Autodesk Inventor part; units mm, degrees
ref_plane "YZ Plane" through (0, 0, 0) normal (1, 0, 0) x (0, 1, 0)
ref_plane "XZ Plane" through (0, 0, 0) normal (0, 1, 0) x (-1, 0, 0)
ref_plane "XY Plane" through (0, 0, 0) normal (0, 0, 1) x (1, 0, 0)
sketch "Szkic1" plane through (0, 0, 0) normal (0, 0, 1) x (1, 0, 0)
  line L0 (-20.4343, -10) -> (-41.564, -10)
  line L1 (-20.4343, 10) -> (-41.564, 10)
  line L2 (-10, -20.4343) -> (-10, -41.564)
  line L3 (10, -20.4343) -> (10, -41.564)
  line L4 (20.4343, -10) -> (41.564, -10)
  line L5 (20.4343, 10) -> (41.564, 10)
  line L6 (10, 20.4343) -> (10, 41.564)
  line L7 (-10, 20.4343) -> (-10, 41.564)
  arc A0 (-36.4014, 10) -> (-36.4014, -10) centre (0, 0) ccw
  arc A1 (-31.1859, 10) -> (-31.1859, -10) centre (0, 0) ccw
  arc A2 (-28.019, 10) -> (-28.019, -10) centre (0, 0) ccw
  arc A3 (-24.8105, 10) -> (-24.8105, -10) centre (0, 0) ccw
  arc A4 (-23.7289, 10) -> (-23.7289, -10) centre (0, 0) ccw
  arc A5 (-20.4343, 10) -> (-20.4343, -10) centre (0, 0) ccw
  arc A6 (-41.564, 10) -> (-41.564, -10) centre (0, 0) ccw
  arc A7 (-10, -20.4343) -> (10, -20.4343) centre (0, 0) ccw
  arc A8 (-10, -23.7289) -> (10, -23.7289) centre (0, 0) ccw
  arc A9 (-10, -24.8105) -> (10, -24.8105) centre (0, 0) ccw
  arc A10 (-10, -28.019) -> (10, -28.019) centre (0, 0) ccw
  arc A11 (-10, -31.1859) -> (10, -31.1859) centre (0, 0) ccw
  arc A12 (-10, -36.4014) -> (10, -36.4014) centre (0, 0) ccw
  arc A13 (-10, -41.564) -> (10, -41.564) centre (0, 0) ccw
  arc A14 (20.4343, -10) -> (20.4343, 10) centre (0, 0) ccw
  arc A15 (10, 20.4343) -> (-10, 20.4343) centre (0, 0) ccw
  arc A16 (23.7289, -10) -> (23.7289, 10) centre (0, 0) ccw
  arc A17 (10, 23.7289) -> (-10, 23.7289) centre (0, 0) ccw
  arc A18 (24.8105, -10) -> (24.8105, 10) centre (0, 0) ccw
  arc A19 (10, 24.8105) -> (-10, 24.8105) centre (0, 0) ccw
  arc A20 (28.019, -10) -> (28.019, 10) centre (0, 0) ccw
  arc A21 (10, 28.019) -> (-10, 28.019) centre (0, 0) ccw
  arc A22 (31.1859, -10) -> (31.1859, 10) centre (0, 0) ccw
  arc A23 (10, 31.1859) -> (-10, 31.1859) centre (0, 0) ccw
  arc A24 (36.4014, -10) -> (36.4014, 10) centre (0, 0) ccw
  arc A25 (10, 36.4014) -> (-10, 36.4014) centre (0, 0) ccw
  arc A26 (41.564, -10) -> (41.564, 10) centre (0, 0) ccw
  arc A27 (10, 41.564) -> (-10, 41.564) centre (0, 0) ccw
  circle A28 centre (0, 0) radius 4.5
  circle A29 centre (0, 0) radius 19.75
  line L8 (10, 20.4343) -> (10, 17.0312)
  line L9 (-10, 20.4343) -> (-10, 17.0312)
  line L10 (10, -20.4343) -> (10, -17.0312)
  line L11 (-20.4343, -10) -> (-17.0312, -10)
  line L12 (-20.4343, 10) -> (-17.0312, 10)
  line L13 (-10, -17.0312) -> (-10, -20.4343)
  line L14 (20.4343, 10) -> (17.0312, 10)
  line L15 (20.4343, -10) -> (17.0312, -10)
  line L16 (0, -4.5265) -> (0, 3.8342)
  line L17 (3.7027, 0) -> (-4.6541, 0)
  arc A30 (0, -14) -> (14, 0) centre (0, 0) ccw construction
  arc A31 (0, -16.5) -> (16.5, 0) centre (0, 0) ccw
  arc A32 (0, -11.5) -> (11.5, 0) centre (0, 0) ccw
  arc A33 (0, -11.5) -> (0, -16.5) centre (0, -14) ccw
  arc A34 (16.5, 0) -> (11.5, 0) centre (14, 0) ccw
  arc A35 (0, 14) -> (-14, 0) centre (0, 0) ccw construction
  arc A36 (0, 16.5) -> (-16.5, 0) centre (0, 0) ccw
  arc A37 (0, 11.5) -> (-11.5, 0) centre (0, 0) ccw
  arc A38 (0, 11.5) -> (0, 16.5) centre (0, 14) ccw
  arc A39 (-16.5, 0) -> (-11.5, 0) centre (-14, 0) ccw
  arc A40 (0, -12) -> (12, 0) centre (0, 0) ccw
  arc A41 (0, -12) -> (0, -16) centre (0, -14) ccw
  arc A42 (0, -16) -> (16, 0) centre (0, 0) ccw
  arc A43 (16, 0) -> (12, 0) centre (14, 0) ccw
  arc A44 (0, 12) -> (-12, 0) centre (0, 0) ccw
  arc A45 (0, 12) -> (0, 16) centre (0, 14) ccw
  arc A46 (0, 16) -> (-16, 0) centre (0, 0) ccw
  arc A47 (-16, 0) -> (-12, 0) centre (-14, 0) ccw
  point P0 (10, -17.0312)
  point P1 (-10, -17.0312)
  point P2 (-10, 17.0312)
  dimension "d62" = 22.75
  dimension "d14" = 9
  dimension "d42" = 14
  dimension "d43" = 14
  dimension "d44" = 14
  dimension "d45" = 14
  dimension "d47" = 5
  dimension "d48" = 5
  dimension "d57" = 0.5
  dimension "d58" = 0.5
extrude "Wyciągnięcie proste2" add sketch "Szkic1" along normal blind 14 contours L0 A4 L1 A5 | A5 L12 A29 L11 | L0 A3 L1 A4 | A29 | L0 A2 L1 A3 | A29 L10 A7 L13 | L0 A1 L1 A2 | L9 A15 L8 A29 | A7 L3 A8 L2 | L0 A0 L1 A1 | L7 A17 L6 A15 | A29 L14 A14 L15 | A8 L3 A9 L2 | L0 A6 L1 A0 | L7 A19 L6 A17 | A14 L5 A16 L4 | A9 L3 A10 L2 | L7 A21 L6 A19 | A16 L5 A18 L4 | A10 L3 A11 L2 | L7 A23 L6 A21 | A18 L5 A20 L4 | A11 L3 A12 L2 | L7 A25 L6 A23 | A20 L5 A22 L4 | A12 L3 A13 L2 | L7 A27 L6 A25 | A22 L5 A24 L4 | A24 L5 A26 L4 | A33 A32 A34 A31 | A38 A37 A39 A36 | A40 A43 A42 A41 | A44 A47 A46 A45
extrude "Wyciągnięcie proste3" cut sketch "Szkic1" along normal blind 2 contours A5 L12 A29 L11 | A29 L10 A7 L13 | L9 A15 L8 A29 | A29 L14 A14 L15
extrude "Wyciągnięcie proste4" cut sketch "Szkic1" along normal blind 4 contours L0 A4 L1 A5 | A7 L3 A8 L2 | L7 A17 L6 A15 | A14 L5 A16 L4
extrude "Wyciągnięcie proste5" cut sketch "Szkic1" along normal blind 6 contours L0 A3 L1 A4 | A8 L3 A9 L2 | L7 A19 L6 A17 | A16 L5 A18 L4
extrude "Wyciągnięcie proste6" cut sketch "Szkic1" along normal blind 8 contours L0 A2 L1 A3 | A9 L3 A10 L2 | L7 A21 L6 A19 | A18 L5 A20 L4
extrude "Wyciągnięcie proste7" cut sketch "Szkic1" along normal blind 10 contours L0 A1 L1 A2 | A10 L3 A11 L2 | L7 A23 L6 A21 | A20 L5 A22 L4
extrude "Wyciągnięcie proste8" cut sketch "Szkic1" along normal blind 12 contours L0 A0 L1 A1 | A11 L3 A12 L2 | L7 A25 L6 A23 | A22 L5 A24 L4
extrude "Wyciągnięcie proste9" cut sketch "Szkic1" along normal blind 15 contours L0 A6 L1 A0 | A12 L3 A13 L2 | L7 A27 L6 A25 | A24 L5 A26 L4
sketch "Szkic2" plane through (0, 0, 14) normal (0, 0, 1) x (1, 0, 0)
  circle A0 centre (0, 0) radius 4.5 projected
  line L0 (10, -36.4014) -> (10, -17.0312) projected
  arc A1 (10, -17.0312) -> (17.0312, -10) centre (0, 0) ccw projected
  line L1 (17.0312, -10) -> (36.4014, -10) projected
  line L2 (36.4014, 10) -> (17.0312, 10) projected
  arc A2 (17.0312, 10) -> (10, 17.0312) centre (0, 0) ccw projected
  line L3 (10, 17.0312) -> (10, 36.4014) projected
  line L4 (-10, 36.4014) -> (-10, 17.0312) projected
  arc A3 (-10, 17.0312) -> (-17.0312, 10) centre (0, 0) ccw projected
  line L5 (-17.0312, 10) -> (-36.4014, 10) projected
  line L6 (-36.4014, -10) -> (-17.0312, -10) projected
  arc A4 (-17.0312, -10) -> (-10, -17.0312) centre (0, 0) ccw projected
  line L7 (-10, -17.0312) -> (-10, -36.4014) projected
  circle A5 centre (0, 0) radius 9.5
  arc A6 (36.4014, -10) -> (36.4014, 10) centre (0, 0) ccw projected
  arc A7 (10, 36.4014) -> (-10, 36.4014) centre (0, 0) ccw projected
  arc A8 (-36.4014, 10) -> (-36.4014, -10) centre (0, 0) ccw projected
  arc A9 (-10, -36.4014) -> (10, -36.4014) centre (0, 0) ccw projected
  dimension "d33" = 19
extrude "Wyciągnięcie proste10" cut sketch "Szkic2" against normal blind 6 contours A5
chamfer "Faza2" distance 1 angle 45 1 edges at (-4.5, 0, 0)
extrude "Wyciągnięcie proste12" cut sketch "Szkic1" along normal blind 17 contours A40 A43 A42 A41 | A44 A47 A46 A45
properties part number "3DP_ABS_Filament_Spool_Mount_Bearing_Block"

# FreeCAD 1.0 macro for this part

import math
import FreeCAD as App
import Part
import Sketcher
from FreeCAD import Vector
Q = App.Units.Quantity


def edges_at(feature, points):
    """Names of the edges that pass closest to the given points."""
    edges = feature.Shape.Edges
    near = lambda p: min(range(len(edges)), key=lambda i: edges[i].distToShape(Part.Vertex(*p))[0])
    return sorted({f"Edge{near(p) + 1}" for p in points})

doc = App.newDocument("Part")
body = doc.addObject("PartDesign::Body", "Body")

# Sketch on XY plane
sketch1 = body.newObject("Sketcher::SketchObject", "Sketch")
sketch1.AttachmentSupport = (doc.getObject("XY_Plane"), [""])
sketch1.MapMode = "FlatFace"
sketch1.addGeometry(Part.ArcOfCircle(Part.Circle(Vector(0, 0, 0), Vector(0, 0, 1), 19.8), math.radians(-150), math.radians(-120)), False)
sketch1.addGeometry(Part.LineSegment(Vector(-10, -17, 0), Vector(-10, -41.6, 0)), False)
sketch1.addGeometry(Part.ArcOfCircle(Part.Circle(Vector(0, 0, 0), Vector(0, 0, 1), 42.8), math.radians(-104), math.radians(-76)), False)
sketch1.addGeometry(Part.LineSegment(Vector(10, -41.6, 0), Vector(10, -17, 0)), False)
sketch1.addGeometry(Part.ArcOfCircle(Part.Circle(Vector(0, 0, 0), Vector(0, 0, 1), 19.8), math.radians(-60), math.radians(-30)), False)
sketch1.addGeometry(Part.LineSegment(Vector(17, -10, 0), Vector(41.6, -10, 0)), False)
sketch1.addGeometry(Part.ArcOfCircle(Part.Circle(Vector(0, 0, 0), Vector(0, 0, 1), 42.8), math.radians(-14), math.radians(14)), False)
sketch1.addGeometry(Part.LineSegment(Vector(41.6, 10, 0), Vector(17, 10, 0)), False)
sketch1.addGeometry(Part.ArcOfCircle(Part.Circle(Vector(0, 0, 0), Vector(0, 0, 1), 19.8), math.radians(30), math.radians(60)), False)
sketch1.addGeometry(Part.LineSegment(Vector(10, 17, 0), Vector(10, 41.6, 0)), False)
sketch1.addGeometry(Part.ArcOfCircle(Part.Circle(Vector(0, 0, 0), Vector(0, 0, 1), 42.8), math.radians(76), math.radians(104)), False)
sketch1.addGeometry(Part.LineSegment(Vector(-10, 41.6, 0), Vector(-10, 17, 0)), False)
sketch1.addGeometry(Part.ArcOfCircle(Part.Circle(Vector(0, 0, 0), Vector(0, 0, 1), 19.8), math.radians(120), math.radians(150)), False)
sketch1.addGeometry(Part.LineSegment(Vector(-17, 10, 0), Vector(-41.6, 10, 0)), False)
sketch1.addGeometry(Part.ArcOfCircle(Part.Circle(Vector(0, 0, 0), Vector(0, 0, 1), 42.8), math.radians(166), math.radians(194)), False)
sketch1.addGeometry(Part.LineSegment(Vector(-41.6, -10, 0), Vector(-17, -10, 0)), False)
sketch1.addGeometry(Part.Circle(Vector(0, 0, 0), Vector(0, 0, 1), 4.5), False)
sketch1.addConstraint(Sketcher.Constraint("Coincident", 0, 2, 1, 1))
sketch1.addConstraint(Sketcher.Constraint("Coincident", 1, 2, 2, 1))
sketch1.addConstraint(Sketcher.Constraint("Coincident", 2, 2, 3, 1))
sketch1.addConstraint(Sketcher.Constraint("Coincident", 3, 2, 4, 1))
sketch1.addConstraint(Sketcher.Constraint("Coincident", 4, 2, 5, 1))
sketch1.addConstraint(Sketcher.Constraint("Coincident", 5, 2, 6, 1))
sketch1.addConstraint(Sketcher.Constraint("Coincident", 6, 2, 7, 1))
sketch1.addConstraint(Sketcher.Constraint("Coincident", 7, 2, 8, 1))
sketch1.addConstraint(Sketcher.Constraint("Coincident", 8, 2, 9, 1))
sketch1.addConstraint(Sketcher.Constraint("Coincident", 9, 2, 10, 1))
sketch1.addConstraint(Sketcher.Constraint("Coincident", 10, 2, 11, 1))
sketch1.addConstraint(Sketcher.Constraint("Coincident", 11, 2, 12, 1))
sketch1.addConstraint(Sketcher.Constraint("Coincident", 12, 2, 13, 1))
sketch1.addConstraint(Sketcher.Constraint("Coincident", 13, 2, 14, 1))
sketch1.addConstraint(Sketcher.Constraint("Coincident", 14, 2, 15, 1))
sketch1.addConstraint(Sketcher.Constraint("Coincident", 15, 2, 0, 1))
sketch1.addConstraint(Sketcher.Constraint("Vertical", 1))
sketch1.addConstraint(Sketcher.Constraint("Vertical", 3))
sketch1.addConstraint(Sketcher.Constraint("Horizontal", 5))
sketch1.addConstraint(Sketcher.Constraint("Horizontal", 7))
sketch1.addConstraint(Sketcher.Constraint("Vertical", 9))
sketch1.addConstraint(Sketcher.Constraint("Vertical", 11))
sketch1.addConstraint(Sketcher.Constraint("Horizontal", 13))
sketch1.addConstraint(Sketcher.Constraint("Horizontal", 15))
sketch1.addConstraint(Sketcher.Constraint("Coincident", 0, 3, -1, 1))
sketch1.addConstraint(Sketcher.Constraint("Coincident", 2, 3, -1, 1))
sketch1.addConstraint(Sketcher.Constraint("Coincident", 4, 3, -1, 1))
sketch1.addConstraint(Sketcher.Constraint("Coincident", 6, 3, -1, 1))
sketch1.addConstraint(Sketcher.Constraint("Coincident", 8, 3, -1, 1))
sketch1.addConstraint(Sketcher.Constraint("Coincident", 10, 3, -1, 1))
sketch1.addConstraint(Sketcher.Constraint("Coincident", 12, 3, -1, 1))
sketch1.addConstraint(Sketcher.Constraint("Coincident", 14, 3, -1, 1))
sketch1.addConstraint(Sketcher.Constraint("Coincident", 16, 3, -1, 1))
sketch1.addConstraint(Sketcher.Constraint("Equal", 0, 4))
sketch1.addConstraint(Sketcher.Constraint("Equal", 2, 6))
sketch1.addConstraint(Sketcher.Constraint("Equal", 4, 8))
sketch1.addConstraint(Sketcher.Constraint("Equal", 6, 10))
sketch1.addConstraint(Sketcher.Constraint("Equal", 8, 12))
sketch1.addConstraint(Sketcher.Constraint("Equal", 10, 14))
sketch1.addConstraint(Sketcher.Constraint("Horizontal", 1, 2, 2, 2))
sketch1.addConstraint(Sketcher.Constraint("Horizontal", 9, 2, 10, 2))
sketch1.addConstraint(Sketcher.Constraint("Horizontal", 7, 2, 12, 2))
sketch1.addConstraint(Sketcher.Constraint("Horizontal", 5, 2, 14, 2))
sketch1.addConstraint(Sketcher.Constraint("Vertical", 5, 2, 6, 2))
sketch1.addConstraint(Sketcher.Constraint("Vertical", 3, 2, 8, 2))
sketch1.addConstraint(Sketcher.Constraint("Equal", 15, 1))
sketch1.addConstraint(Sketcher.Constraint("Diameter", 16, Q("9 mm")))
sketch1.addConstraint(Sketcher.Constraint("Radius", 0, Q("19.75 mm")))
sketch1.addConstraint(Sketcher.Constraint("Radius", 2, Q("42.75 mm")))
sketch1.addConstraint(Sketcher.Constraint("DistanceX", 0, 2, -1, 1, Q("10 mm")))
pad1 = body.newObject("PartDesign::Pad", "Pad")
pad1.Profile = sketch1
pad1.Length = 14

# Sketch on XY plane
sketch2 = body.newObject("Sketcher::SketchObject", "Sketch001")
sketch2.AttachmentSupport = (doc.getObject("XY_Plane"), [""])
sketch2.MapMode = "FlatFace"
sketch2.addGeometry(Part.ArcOfCircle(Part.Circle(Vector(0, 0, 0), Vector(0, 0, 1), 22.7), math.radians(154), math.radians(206)), False)
sketch2.addGeometry(Part.LineSegment(Vector(-20.4, -10, 0), Vector(-17, -10, 0)), False)
sketch2.addGeometry(Part.ArcOfCircle(Part.Circle(Vector(0, 0, 0), Vector(0, 0, 1), 19.8), math.radians(150), math.radians(210)), False)
sketch2.addGeometry(Part.LineSegment(Vector(-17, 10, 0), Vector(-20.4, 10, 0)), False)
sketch2.addGeometry(Part.ArcOfCircle(Part.Circle(Vector(0, 0, 0), Vector(0, 0, 1), 19.8), math.radians(-120), math.radians(-60)), False)
sketch2.addGeometry(Part.LineSegment(Vector(-10, -17, 0), Vector(-10, -20.4, 0)), False)
sketch2.addGeometry(Part.ArcOfCircle(Part.Circle(Vector(0, 0, 0), Vector(0, 0, 1), 22.7), math.radians(-116), math.radians(-64)), False)
sketch2.addGeometry(Part.LineSegment(Vector(10, -20.4, 0), Vector(10, -17, 0)), False)
sketch2.addGeometry(Part.LineSegment(Vector(-10, 20.4, 0), Vector(-10, 17, 0)), False)
sketch2.addGeometry(Part.ArcOfCircle(Part.Circle(Vector(0, 0, 0), Vector(0, 0, 1), 19.8), math.radians(60), math.radians(120)), False)
sketch2.addGeometry(Part.LineSegment(Vector(10, 17, 0), Vector(10, 20.4, 0)), False)
sketch2.addGeometry(Part.ArcOfCircle(Part.Circle(Vector(0, 0, 0), Vector(0, 0, 1), 22.7), math.radians(64), math.radians(116)), False)
sketch2.addGeometry(Part.ArcOfCircle(Part.Circle(Vector(0, 0, 0), Vector(0, 0, 1), 19.8), math.radians(-30), math.radians(30)), False)
sketch2.addGeometry(Part.LineSegment(Vector(17, -10, 0), Vector(20.4, -10, 0)), False)
sketch2.addGeometry(Part.ArcOfCircle(Part.Circle(Vector(0, 0, 0), Vector(0, 0, 1), 22.7), math.radians(-26), math.radians(26)), False)
sketch2.addGeometry(Part.LineSegment(Vector(20.4, 10, 0), Vector(17, 10, 0)), False)
sketch2.addConstraint(Sketcher.Constraint("Coincident", 0, 2, 1, 1))
sketch2.addConstraint(Sketcher.Constraint("Coincident", 1, 2, 2, 2))
sketch2.addConstraint(Sketcher.Constraint("Coincident", 2, 1, 3, 1))
sketch2.addConstraint(Sketcher.Constraint("Coincident", 3, 2, 0, 1))
sketch2.addConstraint(Sketcher.Constraint("Coincident", 4, 1, 5, 1))
sketch2.addConstraint(Sketcher.Constraint("Coincident", 5, 2, 6, 1))
sketch2.addConstraint(Sketcher.Constraint("Coincident", 6, 2, 7, 1))
sketch2.addConstraint(Sketcher.Constraint("Coincident", 7, 2, 4, 2))
sketch2.addConstraint(Sketcher.Constraint("Coincident", 8, 2, 9, 2))
sketch2.addConstraint(Sketcher.Constraint("Coincident", 9, 1, 10, 1))
sketch2.addConstraint(Sketcher.Constraint("Coincident", 10, 2, 11, 1))
sketch2.addConstraint(Sketcher.Constraint("Coincident", 11, 2, 8, 1))
sketch2.addConstraint(Sketcher.Constraint("Coincident", 12, 1, 13, 1))
sketch2.addConstraint(Sketcher.Constraint("Coincident", 13, 2, 14, 1))
sketch2.addConstraint(Sketcher.Constraint("Coincident", 14, 2, 15, 1))
sketch2.addConstraint(Sketcher.Constraint("Coincident", 15, 2, 12, 2))
sketch2.addConstraint(Sketcher.Constraint("Horizontal", 1))
sketch2.addConstraint(Sketcher.Constraint("Horizontal", 3))
sketch2.addConstraint(Sketcher.Constraint("Vertical", 5))
sketch2.addConstraint(Sketcher.Constraint("Vertical", 7))
sketch2.addConstraint(Sketcher.Constraint("Vertical", 8))
sketch2.addConstraint(Sketcher.Constraint("Vertical", 10))
sketch2.addConstraint(Sketcher.Constraint("Horizontal", 13))
sketch2.addConstraint(Sketcher.Constraint("Horizontal", 15))
sketch2.addConstraint(Sketcher.Constraint("Coincident", 0, 3, -1, 1))
sketch2.addConstraint(Sketcher.Constraint("Coincident", 2, 3, -1, 1))
sketch2.addConstraint(Sketcher.Constraint("Coincident", 4, 3, -1, 1))
sketch2.addConstraint(Sketcher.Constraint("Coincident", 6, 3, -1, 1))
sketch2.addConstraint(Sketcher.Constraint("Coincident", 9, 3, -1, 1))
sketch2.addConstraint(Sketcher.Constraint("Coincident", 11, 3, -1, 1))
sketch2.addConstraint(Sketcher.Constraint("Coincident", 12, 3, -1, 1))
sketch2.addConstraint(Sketcher.Constraint("Coincident", 14, 3, -1, 1))
sketch2.addConstraint(Sketcher.Constraint("Equal", 2, 4))
sketch2.addConstraint(Sketcher.Constraint("Equal", 0, 6))
sketch2.addConstraint(Sketcher.Constraint("Equal", 4, 9))
sketch2.addConstraint(Sketcher.Constraint("Equal", 6, 11))
sketch2.addConstraint(Sketcher.Constraint("Equal", 9, 12))
sketch2.addConstraint(Sketcher.Constraint("Equal", 11, 14))
sketch2.addConstraint(Sketcher.Constraint("Horizontal", 5, 2, 6, 2))
sketch2.addConstraint(Sketcher.Constraint("Horizontal", 8, 2, 9, 1))
sketch2.addConstraint(Sketcher.Constraint("Horizontal", 1, 2, 12, 1))
sketch2.addConstraint(Sketcher.Constraint("Horizontal", 3, 2, 14, 2))
sketch2.addConstraint(Sketcher.Constraint("Vertical", 1, 2, 2, 1))
sketch2.addConstraint(Sketcher.Constraint("Vertical", 5, 2, 8, 2))
sketch2.addConstraint(Sketcher.Constraint("Equal", 15, 5))
sketch2.addConstraint(Sketcher.Constraint("Radius", 0, Q("22.75 mm")))
sketch2.addConstraint(Sketcher.Constraint("Radius", 2, Q("19.75 mm")))
sketch2.addConstraint(Sketcher.Constraint("DistanceY", 0, 2, -1, 1, Q("10 mm")))
pocket1 = body.newObject("PartDesign::Pocket", "Pocket")
pocket1.Profile = sketch2
pocket1.Length = 2
pocket1.Reversed = True

# Sketch on XY plane
sketch3 = body.newObject("Sketcher::SketchObject", "Sketch002")
sketch3.AttachmentSupport = (doc.getObject("XY_Plane"), [""])
sketch3.MapMode = "FlatFace"
sketch3.addGeometry(Part.LineSegment(Vector(-23.7, -10, 0), Vector(-20.4, -10, 0)), False)
sketch3.addGeometry(Part.ArcOfCircle(Part.Circle(Vector(0, 0, 0), Vector(0, 0, 1), 22.7), math.radians(154), math.radians(206)), False)
sketch3.addGeometry(Part.LineSegment(Vector(-20.4, 10, 0), Vector(-23.7, 10, 0)), False)
sketch3.addGeometry(Part.ArcOfCircle(Part.Circle(Vector(0, 0, 0), Vector(0, 0, 1), 25.7), math.radians(157), math.radians(203)), False)
sketch3.addGeometry(Part.ArcOfCircle(Part.Circle(Vector(0, 0, 0), Vector(0, 0, 1), 22.7), math.radians(-116), math.radians(-64)), False)
sketch3.addGeometry(Part.LineSegment(Vector(-10, -20.4, 0), Vector(-10, -23.7, 0)), False)
sketch3.addGeometry(Part.ArcOfCircle(Part.Circle(Vector(0, 0, 0), Vector(0, 0, 1), 25.7), math.radians(-113), math.radians(-67)), False)
sketch3.addGeometry(Part.LineSegment(Vector(10, -23.7, 0), Vector(10, -20.4, 0)), False)
sketch3.addGeometry(Part.LineSegment(Vector(-10, 23.7, 0), Vector(-10, 20.4, 0)), False)
sketch3.addGeometry(Part.ArcOfCircle(Part.Circle(Vector(0, 0, 0), Vector(0, 0, 1), 22.7), math.radians(64), math.radians(116)), False)
sketch3.addGeometry(Part.LineSegment(Vector(10, 20.4, 0), Vector(10, 23.7, 0)), False)
sketch3.addGeometry(Part.ArcOfCircle(Part.Circle(Vector(0, 0, 0), Vector(0, 0, 1), 25.7), math.radians(67), math.radians(113)), False)
sketch3.addGeometry(Part.ArcOfCircle(Part.Circle(Vector(0, 0, 0), Vector(0, 0, 1), 22.7), math.radians(-26), math.radians(26)), False)
sketch3.addGeometry(Part.LineSegment(Vector(20.4, -10, 0), Vector(23.7, -10, 0)), False)
sketch3.addGeometry(Part.ArcOfCircle(Part.Circle(Vector(0, 0, 0), Vector(0, 0, 1), 25.7), math.radians(-23), math.radians(23)), False)
sketch3.addGeometry(Part.LineSegment(Vector(23.7, 10, 0), Vector(20.4, 10, 0)), False)
sketch3.addConstraint(Sketcher.Constraint("Coincident", 0, 2, 1, 2))
sketch3.addConstraint(Sketcher.Constraint("Coincident", 1, 1, 2, 1))
sketch3.addConstraint(Sketcher.Constraint("Coincident", 2, 2, 3, 1))
sketch3.addConstraint(Sketcher.Constraint("Coincident", 3, 2, 0, 1))
sketch3.addConstraint(Sketcher.Constraint("Coincident", 4, 1, 5, 1))
sketch3.addConstraint(Sketcher.Constraint("Coincident", 5, 2, 6, 1))
sketch3.addConstraint(Sketcher.Constraint("Coincident", 6, 2, 7, 1))
sketch3.addConstraint(Sketcher.Constraint("Coincident", 7, 2, 4, 2))
sketch3.addConstraint(Sketcher.Constraint("Coincident", 8, 2, 9, 2))
sketch3.addConstraint(Sketcher.Constraint("Coincident", 9, 1, 10, 1))
sketch3.addConstraint(Sketcher.Constraint("Coincident", 10, 2, 11, 1))
sketch3.addConstraint(Sketcher.Constraint("Coincident", 11, 2, 8, 1))
sketch3.addConstraint(Sketcher.Constraint("Coincident", 12, 1, 13, 1))
sketch3.addConstraint(Sketcher.Constraint("Coincident", 13, 2, 14, 1))
sketch3.addConstraint(Sketcher.Constraint("Coincident", 14, 2, 15, 1))
sketch3.addConstraint(Sketcher.Constraint("Coincident", 15, 2, 12, 2))
sketch3.addConstraint(Sketcher.Constraint("Horizontal", 0))
sketch3.addConstraint(Sketcher.Constraint("Horizontal", 2))
sketch3.addConstraint(Sketcher.Constraint("Vertical", 5))
sketch3.addConstraint(Sketcher.Constraint("Vertical", 7))
sketch3.addConstraint(Sketcher.Constraint("Vertical", 8))
sketch3.addConstraint(Sketcher.Constraint("Vertical", 10))
sketch3.addConstraint(Sketcher.Constraint("Horizontal", 13))
sketch3.addConstraint(Sketcher.Constraint("Horizontal", 15))
sketch3.addConstraint(Sketcher.Constraint("Coincident", 1, 3, -1, 1))
sketch3.addConstraint(Sketcher.Constraint("Coincident", 3, 3, -1, 1))
sketch3.addConstraint(Sketcher.Constraint("Coincident", 4, 3, -1, 1))
sketch3.addConstraint(Sketcher.Constraint("Coincident", 6, 3, -1, 1))
sketch3.addConstraint(Sketcher.Constraint("Coincident", 9, 3, -1, 1))
sketch3.addConstraint(Sketcher.Constraint("Coincident", 11, 3, -1, 1))
sketch3.addConstraint(Sketcher.Constraint("Coincident", 12, 3, -1, 1))
sketch3.addConstraint(Sketcher.Constraint("Coincident", 14, 3, -1, 1))
sketch3.addConstraint(Sketcher.Constraint("Equal", 1, 4))
sketch3.addConstraint(Sketcher.Constraint("Equal", 3, 6))
sketch3.addConstraint(Sketcher.Constraint("Equal", 4, 9))
sketch3.addConstraint(Sketcher.Constraint("Equal", 6, 11))
sketch3.addConstraint(Sketcher.Constraint("Equal", 9, 12))
sketch3.addConstraint(Sketcher.Constraint("Equal", 11, 14))
sketch3.addConstraint(Sketcher.Constraint("Horizontal", 5, 2, 6, 2))
sketch3.addConstraint(Sketcher.Constraint("Horizontal", 8, 2, 9, 1))
sketch3.addConstraint(Sketcher.Constraint("Horizontal", 3, 2, 12, 1))
sketch3.addConstraint(Sketcher.Constraint("Horizontal", 2, 2, 14, 2))
sketch3.addConstraint(Sketcher.Constraint("Vertical", 0, 2, 1, 1))
sketch3.addConstraint(Sketcher.Constraint("Vertical", 5, 2, 8, 2))
sketch3.addConstraint(Sketcher.Constraint("Equal", 15, 5))
sketch3.addConstraint(Sketcher.Constraint("Radius", 1, Q("22.75 mm")))
sketch3.addConstraint(Sketcher.Constraint("Radius", 3, Q("25.75 mm")))
sketch3.addConstraint(Sketcher.Constraint("DistanceY", 0, 2, -1, 1, Q("10 mm")))
pocket2 = body.newObject("PartDesign::Pocket", "Pocket001")
pocket2.Profile = sketch3
pocket2.Length = 4
pocket2.Reversed = True

# Sketch on XY plane
sketch4 = body.newObject("Sketcher::SketchObject", "Sketch003")
sketch4.AttachmentSupport = (doc.getObject("XY_Plane"), [""])
sketch4.MapMode = "FlatFace"
sketch4.addGeometry(Part.LineSegment(Vector(-24.8, -10, 0), Vector(-23.7, -10, 0)), False)
sketch4.addGeometry(Part.ArcOfCircle(Part.Circle(Vector(0, 0, 0), Vector(0, 0, 1), 25.7), math.radians(157), math.radians(203)), False)
sketch4.addGeometry(Part.LineSegment(Vector(-23.7, 10, 0), Vector(-24.8, 10, 0)), False)
sketch4.addGeometry(Part.ArcOfCircle(Part.Circle(Vector(0, 0, 0), Vector(0, 0, 1), 26.7), math.radians(158), math.radians(202)), False)
sketch4.addGeometry(Part.ArcOfCircle(Part.Circle(Vector(0, 0, 0), Vector(0, 0, 1), 25.7), math.radians(-113), math.radians(-67)), False)
sketch4.addGeometry(Part.LineSegment(Vector(-10, -23.7, 0), Vector(-10, -24.8, 0)), False)
sketch4.addGeometry(Part.ArcOfCircle(Part.Circle(Vector(0, 0, 0), Vector(0, 0, 1), 26.7), math.radians(-112), math.radians(-68)), False)
sketch4.addGeometry(Part.LineSegment(Vector(10, -24.8, 0), Vector(10, -23.7, 0)), False)
sketch4.addGeometry(Part.LineSegment(Vector(-10, 24.8, 0), Vector(-10, 23.7, 0)), False)
sketch4.addGeometry(Part.ArcOfCircle(Part.Circle(Vector(0, 0, 0), Vector(0, 0, 1), 25.7), math.radians(67), math.radians(113)), False)
sketch4.addGeometry(Part.LineSegment(Vector(10, 23.7, 0), Vector(10, 24.8, 0)), False)
sketch4.addGeometry(Part.ArcOfCircle(Part.Circle(Vector(0, 0, 0), Vector(0, 0, 1), 26.7), math.radians(68), math.radians(112)), False)
sketch4.addGeometry(Part.ArcOfCircle(Part.Circle(Vector(0, 0, 0), Vector(0, 0, 1), 25.7), math.radians(-23), math.radians(23)), False)
sketch4.addGeometry(Part.LineSegment(Vector(23.7, -10, 0), Vector(24.8, -10, 0)), False)
sketch4.addGeometry(Part.ArcOfCircle(Part.Circle(Vector(0, 0, 0), Vector(0, 0, 1), 26.7), math.radians(-22), math.radians(22)), False)
sketch4.addGeometry(Part.LineSegment(Vector(24.8, 10, 0), Vector(23.7, 10, 0)), False)
sketch4.addConstraint(Sketcher.Constraint("Coincident", 0, 2, 1, 2))
sketch4.addConstraint(Sketcher.Constraint("Coincident", 1, 1, 2, 1))
sketch4.addConstraint(Sketcher.Constraint("Coincident", 2, 2, 3, 1))
sketch4.addConstraint(Sketcher.Constraint("Coincident", 3, 2, 0, 1))
sketch4.addConstraint(Sketcher.Constraint("Coincident", 4, 1, 5, 1))
sketch4.addConstraint(Sketcher.Constraint("Coincident", 5, 2, 6, 1))
sketch4.addConstraint(Sketcher.Constraint("Coincident", 6, 2, 7, 1))
sketch4.addConstraint(Sketcher.Constraint("Coincident", 7, 2, 4, 2))
sketch4.addConstraint(Sketcher.Constraint("Coincident", 8, 2, 9, 2))
sketch4.addConstraint(Sketcher.Constraint("Coincident", 9, 1, 10, 1))
sketch4.addConstraint(Sketcher.Constraint("Coincident", 10, 2, 11, 1))
sketch4.addConstraint(Sketcher.Constraint("Coincident", 11, 2, 8, 1))
sketch4.addConstraint(Sketcher.Constraint("Coincident", 12, 1, 13, 1))
sketch4.addConstraint(Sketcher.Constraint("Coincident", 13, 2, 14, 1))
sketch4.addConstraint(Sketcher.Constraint("Coincident", 14, 2, 15, 1))
sketch4.addConstraint(Sketcher.Constraint("Coincident", 15, 2, 12, 2))
sketch4.addConstraint(Sketcher.Constraint("Horizontal", 0))
sketch4.addConstraint(Sketcher.Constraint("Horizontal", 2))
sketch4.addConstraint(Sketcher.Constraint("Vertical", 5))
sketch4.addConstraint(Sketcher.Constraint("Vertical", 7))
sketch4.addConstraint(Sketcher.Constraint("Vertical", 8))
sketch4.addConstraint(Sketcher.Constraint("Vertical", 10))
sketch4.addConstraint(Sketcher.Constraint("Horizontal", 13))
sketch4.addConstraint(Sketcher.Constraint("Horizontal", 15))
sketch4.addConstraint(Sketcher.Constraint("Coincident", 1, 3, -1, 1))
sketch4.addConstraint(Sketcher.Constraint("Coincident", 3, 3, -1, 1))
sketch4.addConstraint(Sketcher.Constraint("Coincident", 4, 3, -1, 1))
sketch4.addConstraint(Sketcher.Constraint("Coincident", 6, 3, -1, 1))
sketch4.addConstraint(Sketcher.Constraint("Coincident", 9, 3, -1, 1))
sketch4.addConstraint(Sketcher.Constraint("Coincident", 11, 3, -1, 1))
sketch4.addConstraint(Sketcher.Constraint("Coincident", 12, 3, -1, 1))
sketch4.addConstraint(Sketcher.Constraint("Coincident", 14, 3, -1, 1))
sketch4.addConstraint(Sketcher.Constraint("Equal", 1, 4))
sketch4.addConstraint(Sketcher.Constraint("Equal", 3, 6))
sketch4.addConstraint(Sketcher.Constraint("Equal", 4, 9))
sketch4.addConstraint(Sketcher.Constraint("Equal", 6, 11))
sketch4.addConstraint(Sketcher.Constraint("Equal", 9, 12))
sketch4.addConstraint(Sketcher.Constraint("Equal", 11, 14))
sketch4.addConstraint(Sketcher.Constraint("Horizontal", 5, 2, 6, 2))
sketch4.addConstraint(Sketcher.Constraint("Horizontal", 8, 2, 9, 1))
sketch4.addConstraint(Sketcher.Constraint("Horizontal", 3, 2, 12, 1))
sketch4.addConstraint(Sketcher.Constraint("Horizontal", 2, 2, 14, 2))
sketch4.addConstraint(Sketcher.Constraint("Vertical", 0, 2, 1, 1))
sketch4.addConstraint(Sketcher.Constraint("Vertical", 5, 2, 8, 2))
sketch4.addConstraint(Sketcher.Constraint("Equal", 15, 5))
sketch4.addConstraint(Sketcher.Constraint("Radius", 1, Q("25.75 mm")))
sketch4.addConstraint(Sketcher.Constraint("Radius", 3, Q("26.75 mm")))
sketch4.addConstraint(Sketcher.Constraint("DistanceY", 0, 2, -1, 1, Q("10 mm")))
pocket3 = body.newObject("PartDesign::Pocket", "Pocket002")
pocket3.Profile = sketch4
pocket3.Length = 6
pocket3.Reversed = True

# Sketch on XY plane
sketch5 = body.newObject("Sketcher::SketchObject", "Sketch004")
sketch5.AttachmentSupport = (doc.getObject("XY_Plane"), [""])
sketch5.MapMode = "FlatFace"
sketch5.addGeometry(Part.LineSegment(Vector(-28, -10, 0), Vector(-24.8, -10, 0)), False)
sketch5.addGeometry(Part.ArcOfCircle(Part.Circle(Vector(0, 0, 0), Vector(0, 0, 1), 26.7), math.radians(158), math.radians(202)), False)
sketch5.addGeometry(Part.LineSegment(Vector(-24.8, 10, 0), Vector(-28, 10, 0)), False)
sketch5.addGeometry(Part.ArcOfCircle(Part.Circle(Vector(0, 0, 0), Vector(0, 0, 1), 29.8), math.radians(160), math.radians(200)), False)
sketch5.addGeometry(Part.ArcOfCircle(Part.Circle(Vector(0, 0, 0), Vector(0, 0, 1), 26.7), math.radians(-112), math.radians(-68)), False)
sketch5.addGeometry(Part.LineSegment(Vector(-10, -24.8, 0), Vector(-10, -28, 0)), False)
sketch5.addGeometry(Part.ArcOfCircle(Part.Circle(Vector(0, 0, 0), Vector(0, 0, 1), 29.8), math.radians(-110), math.radians(-70)), False)
sketch5.addGeometry(Part.LineSegment(Vector(10, -28, 0), Vector(10, -24.8, 0)), False)
sketch5.addGeometry(Part.LineSegment(Vector(-10, 28, 0), Vector(-10, 24.8, 0)), False)
sketch5.addGeometry(Part.ArcOfCircle(Part.Circle(Vector(0, 0, 0), Vector(0, 0, 1), 26.7), math.radians(68), math.radians(112)), False)
sketch5.addGeometry(Part.LineSegment(Vector(10, 24.8, 0), Vector(10, 28, 0)), False)
sketch5.addGeometry(Part.ArcOfCircle(Part.Circle(Vector(0, 0, 0), Vector(0, 0, 1), 29.8), math.radians(70), math.radians(110)), False)
sketch5.addGeometry(Part.ArcOfCircle(Part.Circle(Vector(0, 0, 0), Vector(0, 0, 1), 26.7), math.radians(-22), math.radians(22)), False)
sketch5.addGeometry(Part.LineSegment(Vector(24.8, -10, 0), Vector(28, -10, 0)), False)
sketch5.addGeometry(Part.ArcOfCircle(Part.Circle(Vector(0, 0, 0), Vector(0, 0, 1), 29.8), math.radians(-20), math.radians(20)), False)
sketch5.addGeometry(Part.LineSegment(Vector(28, 10, 0), Vector(24.8, 10, 0)), False)
sketch5.addConstraint(Sketcher.Constraint("Coincident", 0, 2, 1, 2))
sketch5.addConstraint(Sketcher.Constraint("Coincident", 1, 1, 2, 1))
sketch5.addConstraint(Sketcher.Constraint("Coincident", 2, 2, 3, 1))
sketch5.addConstraint(Sketcher.Constraint("Coincident", 3, 2, 0, 1))
sketch5.addConstraint(Sketcher.Constraint("Coincident", 4, 1, 5, 1))
sketch5.addConstraint(Sketcher.Constraint("Coincident", 5, 2, 6, 1))
sketch5.addConstraint(Sketcher.Constraint("Coincident", 6, 2, 7, 1))
sketch5.addConstraint(Sketcher.Constraint("Coincident", 7, 2, 4, 2))
sketch5.addConstraint(Sketcher.Constraint("Coincident", 8, 2, 9, 2))
sketch5.addConstraint(Sketcher.Constraint("Coincident", 9, 1, 10, 1))
sketch5.addConstraint(Sketcher.Constraint("Coincident", 10, 2, 11, 1))
sketch5.addConstraint(Sketcher.Constraint("Coincident", 11, 2, 8, 1))
sketch5.addConstraint(Sketcher.Constraint("Coincident", 12, 1, 13, 1))
sketch5.addConstraint(Sketcher.Constraint("Coincident", 13, 2, 14, 1))
sketch5.addConstraint(Sketcher.Constraint("Coincident", 14, 2, 15, 1))
sketch5.addConstraint(Sketcher.Constraint("Coincident", 15, 2, 12, 2))
sketch5.addConstraint(Sketcher.Constraint("Horizontal", 0))
sketch5.addConstraint(Sketcher.Constraint("Horizontal", 2))
sketch5.addConstraint(Sketcher.Constraint("Vertical", 5))
sketch5.addConstraint(Sketcher.Constraint("Vertical", 7))
sketch5.addConstraint(Sketcher.Constraint("Vertical", 8))
sketch5.addConstraint(Sketcher.Constraint("Vertical", 10))
sketch5.addConstraint(Sketcher.Constraint("Horizontal", 13))
sketch5.addConstraint(Sketcher.Constraint("Horizontal", 15))
sketch5.addConstraint(Sketcher.Constraint("Coincident", 1, 3, -1, 1))
sketch5.addConstraint(Sketcher.Constraint("Coincident", 3, 3, -1, 1))
sketch5.addConstraint(Sketcher.Constraint("Coincident", 4, 3, -1, 1))
sketch5.addConstraint(Sketcher.Constraint("Coincident", 6, 3, -1, 1))
sketch5.addConstraint(Sketcher.Constraint("Coincident", 9, 3, -1, 1))
sketch5.addConstraint(Sketcher.Constraint("Coincident", 11, 3, -1, 1))
sketch5.addConstraint(Sketcher.Constraint("Coincident", 12, 3, -1, 1))
sketch5.addConstraint(Sketcher.Constraint("Coincident", 14, 3, -1, 1))
sketch5.addConstraint(Sketcher.Constraint("Equal", 1, 4))
sketch5.addConstraint(Sketcher.Constraint("Equal", 3, 6))
sketch5.addConstraint(Sketcher.Constraint("Equal", 4, 9))
sketch5.addConstraint(Sketcher.Constraint("Equal", 6, 11))
sketch5.addConstraint(Sketcher.Constraint("Equal", 9, 12))
sketch5.addConstraint(Sketcher.Constraint("Equal", 11, 14))
sketch5.addConstraint(Sketcher.Constraint("Horizontal", 5, 2, 6, 2))
sketch5.addConstraint(Sketcher.Constraint("Horizontal", 8, 2, 9, 1))
sketch5.addConstraint(Sketcher.Constraint("Horizontal", 3, 2, 12, 1))
sketch5.addConstraint(Sketcher.Constraint("Horizontal", 2, 2, 14, 2))
sketch5.addConstraint(Sketcher.Constraint("Vertical", 0, 2, 1, 1))
sketch5.addConstraint(Sketcher.Constraint("Vertical", 5, 2, 8, 2))
sketch5.addConstraint(Sketcher.Constraint("Equal", 15, 5))
sketch5.addConstraint(Sketcher.Constraint("Radius", 1, Q("26.75 mm")))
sketch5.addConstraint(Sketcher.Constraint("Radius", 3, Q("29.75 mm")))
sketch5.addConstraint(Sketcher.Constraint("DistanceY", 0, 2, -1, 1, Q("10 mm")))
pocket4 = body.newObject("PartDesign::Pocket", "Pocket003")
pocket4.Profile = sketch5
pocket4.Length = 8
pocket4.Reversed = True

# Sketch on XY plane
sketch6 = body.newObject("Sketcher::SketchObject", "Sketch005")
sketch6.AttachmentSupport = (doc.getObject("XY_Plane"), [""])
sketch6.MapMode = "FlatFace"
sketch6.addGeometry(Part.LineSegment(Vector(-31.2, -10, 0), Vector(-28, -10, 0)), False)
sketch6.addGeometry(Part.ArcOfCircle(Part.Circle(Vector(0, 0, 0), Vector(0, 0, 1), 29.8), math.radians(160), math.radians(200)), False)
sketch6.addGeometry(Part.LineSegment(Vector(-28, 10, 0), Vector(-31.2, 10, 0)), False)
sketch6.addGeometry(Part.ArcOfCircle(Part.Circle(Vector(0, 0, 0), Vector(0, 0, 1), 32.7), math.radians(162), math.radians(198)), False)
sketch6.addGeometry(Part.ArcOfCircle(Part.Circle(Vector(0, 0, 0), Vector(0, 0, 1), 29.8), math.radians(-110), math.radians(-70)), False)
sketch6.addGeometry(Part.LineSegment(Vector(-10, -28, 0), Vector(-10, -31.2, 0)), False)
sketch6.addGeometry(Part.ArcOfCircle(Part.Circle(Vector(0, 0, 0), Vector(0, 0, 1), 32.7), math.radians(-108), math.radians(-72)), False)
sketch6.addGeometry(Part.LineSegment(Vector(10, -31.2, 0), Vector(10, -28, 0)), False)
sketch6.addGeometry(Part.LineSegment(Vector(-10, 31.2, 0), Vector(-10, 28, 0)), False)
sketch6.addGeometry(Part.ArcOfCircle(Part.Circle(Vector(0, 0, 0), Vector(0, 0, 1), 29.8), math.radians(70), math.radians(110)), False)
sketch6.addGeometry(Part.LineSegment(Vector(10, 28, 0), Vector(10, 31.2, 0)), False)
sketch6.addGeometry(Part.ArcOfCircle(Part.Circle(Vector(0, 0, 0), Vector(0, 0, 1), 32.7), math.radians(72), math.radians(108)), False)
sketch6.addGeometry(Part.ArcOfCircle(Part.Circle(Vector(0, 0, 0), Vector(0, 0, 1), 29.8), math.radians(-20), math.radians(20)), False)
sketch6.addGeometry(Part.LineSegment(Vector(28, -10, 0), Vector(31.2, -10, 0)), False)
sketch6.addGeometry(Part.ArcOfCircle(Part.Circle(Vector(0, 0, 0), Vector(0, 0, 1), 32.7), math.radians(-18), math.radians(18)), False)
sketch6.addGeometry(Part.LineSegment(Vector(31.2, 10, 0), Vector(28, 10, 0)), False)
sketch6.addConstraint(Sketcher.Constraint("Coincident", 0, 2, 1, 2))
sketch6.addConstraint(Sketcher.Constraint("Coincident", 1, 1, 2, 1))
sketch6.addConstraint(Sketcher.Constraint("Coincident", 2, 2, 3, 1))
sketch6.addConstraint(Sketcher.Constraint("Coincident", 3, 2, 0, 1))
sketch6.addConstraint(Sketcher.Constraint("Coincident", 4, 1, 5, 1))
sketch6.addConstraint(Sketcher.Constraint("Coincident", 5, 2, 6, 1))
sketch6.addConstraint(Sketcher.Constraint("Coincident", 6, 2, 7, 1))
sketch6.addConstraint(Sketcher.Constraint("Coincident", 7, 2, 4, 2))
sketch6.addConstraint(Sketcher.Constraint("Coincident", 8, 2, 9, 2))
sketch6.addConstraint(Sketcher.Constraint("Coincident", 9, 1, 10, 1))
sketch6.addConstraint(Sketcher.Constraint("Coincident", 10, 2, 11, 1))
sketch6.addConstraint(Sketcher.Constraint("Coincident", 11, 2, 8, 1))
sketch6.addConstraint(Sketcher.Constraint("Coincident", 12, 1, 13, 1))
sketch6.addConstraint(Sketcher.Constraint("Coincident", 13, 2, 14, 1))
sketch6.addConstraint(Sketcher.Constraint("Coincident", 14, 2, 15, 1))
sketch6.addConstraint(Sketcher.Constraint("Coincident", 15, 2, 12, 2))
sketch6.addConstraint(Sketcher.Constraint("Horizontal", 0))
sketch6.addConstraint(Sketcher.Constraint("Horizontal", 2))
sketch6.addConstraint(Sketcher.Constraint("Vertical", 5))
sketch6.addConstraint(Sketcher.Constraint("Vertical", 7))
sketch6.addConstraint(Sketcher.Constraint("Vertical", 8))
sketch6.addConstraint(Sketcher.Constraint("Vertical", 10))
sketch6.addConstraint(Sketcher.Constraint("Horizontal", 13))
sketch6.addConstraint(Sketcher.Constraint("Horizontal", 15))
sketch6.addConstraint(Sketcher.Constraint("Coincident", 1, 3, -1, 1))
sketch6.addConstraint(Sketcher.Constraint("Coincident", 3, 3, -1, 1))
sketch6.addConstraint(Sketcher.Constraint("Coincident", 4, 3, -1, 1))
sketch6.addConstraint(Sketcher.Constraint("Coincident", 6, 3, -1, 1))
sketch6.addConstraint(Sketcher.Constraint("Coincident", 9, 3, -1, 1))
sketch6.addConstraint(Sketcher.Constraint("Coincident", 11, 3, -1, 1))
sketch6.addConstraint(Sketcher.Constraint("Coincident", 12, 3, -1, 1))
sketch6.addConstraint(Sketcher.Constraint("Coincident", 14, 3, -1, 1))
sketch6.addConstraint(Sketcher.Constraint("Equal", 1, 4))
sketch6.addConstraint(Sketcher.Constraint("Equal", 3, 6))
sketch6.addConstraint(Sketcher.Constraint("Equal", 4, 9))
sketch6.addConstraint(Sketcher.Constraint("Equal", 6, 11))
sketch6.addConstraint(Sketcher.Constraint("Equal", 9, 12))
sketch6.addConstraint(Sketcher.Constraint("Equal", 11, 14))
sketch6.addConstraint(Sketcher.Constraint("Horizontal", 5, 2, 6, 2))
sketch6.addConstraint(Sketcher.Constraint("Horizontal", 8, 2, 9, 1))
sketch6.addConstraint(Sketcher.Constraint("Horizontal", 3, 2, 12, 1))
sketch6.addConstraint(Sketcher.Constraint("Horizontal", 2, 2, 14, 2))
sketch6.addConstraint(Sketcher.Constraint("Vertical", 0, 2, 1, 1))
sketch6.addConstraint(Sketcher.Constraint("Vertical", 5, 2, 8, 2))
sketch6.addConstraint(Sketcher.Constraint("Equal", 15, 5))
sketch6.addConstraint(Sketcher.Constraint("Radius", 1, Q("29.75 mm")))
sketch6.addConstraint(Sketcher.Constraint("Radius", 3, Q("32.75 mm")))
sketch6.addConstraint(Sketcher.Constraint("DistanceY", 0, 2, -1, 1, Q("10 mm")))
pocket5 = body.newObject("PartDesign::Pocket", "Pocket004")
pocket5.Profile = sketch6
pocket5.Length = 10
pocket5.Reversed = True

# Sketch on XY plane
sketch7 = body.newObject("Sketcher::SketchObject", "Sketch006")
sketch7.AttachmentSupport = (doc.getObject("XY_Plane"), [""])
sketch7.MapMode = "FlatFace"
sketch7.addGeometry(Part.LineSegment(Vector(-36, -10, 0), Vector(-31, -10, 0)), False)
sketch7.addGeometry(Part.ArcOfCircle(Part.Circle(Vector(0, 0, 0), Vector(0, 0, 1), 33), math.radians(162), math.radians(198)), False)
sketch7.addGeometry(Part.LineSegment(Vector(-31, 10, 0), Vector(-36, 10, 0)), False)
sketch7.addGeometry(Part.ArcOfCircle(Part.Circle(Vector(0, 0, 0), Vector(0, 0, 1), 38), math.radians(165), math.radians(195)), False)
sketch7.addGeometry(Part.ArcOfCircle(Part.Circle(Vector(0, 0, 0), Vector(0, 0, 1), 33), math.radians(-108), math.radians(-72)), False)
sketch7.addGeometry(Part.LineSegment(Vector(-10, -31, 0), Vector(-10, -36, 0)), False)
sketch7.addGeometry(Part.ArcOfCircle(Part.Circle(Vector(0, 0, 0), Vector(0, 0, 1), 38), math.radians(-105), math.radians(-75)), False)
sketch7.addGeometry(Part.LineSegment(Vector(10, -36, 0), Vector(10, -31, 0)), False)
sketch7.addGeometry(Part.LineSegment(Vector(-10, 36, 0), Vector(-10, 31, 0)), False)
sketch7.addGeometry(Part.ArcOfCircle(Part.Circle(Vector(0, 0, 0), Vector(0, 0, 1), 33), math.radians(72), math.radians(108)), False)
sketch7.addGeometry(Part.LineSegment(Vector(10, 31, 0), Vector(10, 36, 0)), False)
sketch7.addGeometry(Part.ArcOfCircle(Part.Circle(Vector(0, 0, 0), Vector(0, 0, 1), 38), math.radians(75), math.radians(105)), False)
sketch7.addGeometry(Part.ArcOfCircle(Part.Circle(Vector(0, 0, 0), Vector(0, 0, 1), 33), math.radians(-18), math.radians(18)), False)
sketch7.addGeometry(Part.LineSegment(Vector(31, -10, 0), Vector(36, -10, 0)), False)
sketch7.addGeometry(Part.ArcOfCircle(Part.Circle(Vector(0, 0, 0), Vector(0, 0, 1), 38), math.radians(-15), math.radians(15)), False)
sketch7.addGeometry(Part.LineSegment(Vector(36, 10, 0), Vector(31, 10, 0)), False)
sketch7.addConstraint(Sketcher.Constraint("Coincident", 0, 2, 1, 2))
sketch7.addConstraint(Sketcher.Constraint("Coincident", 1, 1, 2, 1))
sketch7.addConstraint(Sketcher.Constraint("Coincident", 2, 2, 3, 1))
sketch7.addConstraint(Sketcher.Constraint("Coincident", 3, 2, 0, 1))
sketch7.addConstraint(Sketcher.Constraint("Coincident", 4, 1, 5, 1))
sketch7.addConstraint(Sketcher.Constraint("Coincident", 5, 2, 6, 1))
sketch7.addConstraint(Sketcher.Constraint("Coincident", 6, 2, 7, 1))
sketch7.addConstraint(Sketcher.Constraint("Coincident", 7, 2, 4, 2))
sketch7.addConstraint(Sketcher.Constraint("Coincident", 8, 2, 9, 2))
sketch7.addConstraint(Sketcher.Constraint("Coincident", 9, 1, 10, 1))
sketch7.addConstraint(Sketcher.Constraint("Coincident", 10, 2, 11, 1))
sketch7.addConstraint(Sketcher.Constraint("Coincident", 11, 2, 8, 1))
sketch7.addConstraint(Sketcher.Constraint("Coincident", 12, 1, 13, 1))
sketch7.addConstraint(Sketcher.Constraint("Coincident", 13, 2, 14, 1))
sketch7.addConstraint(Sketcher.Constraint("Coincident", 14, 2, 15, 1))
sketch7.addConstraint(Sketcher.Constraint("Coincident", 15, 2, 12, 2))
sketch7.addConstraint(Sketcher.Constraint("Horizontal", 0))
sketch7.addConstraint(Sketcher.Constraint("Horizontal", 2))
sketch7.addConstraint(Sketcher.Constraint("Vertical", 5))
sketch7.addConstraint(Sketcher.Constraint("Vertical", 7))
sketch7.addConstraint(Sketcher.Constraint("Vertical", 8))
sketch7.addConstraint(Sketcher.Constraint("Vertical", 10))
sketch7.addConstraint(Sketcher.Constraint("Horizontal", 13))
sketch7.addConstraint(Sketcher.Constraint("Horizontal", 15))
sketch7.addConstraint(Sketcher.Constraint("Coincident", 1, 3, -1, 1))
sketch7.addConstraint(Sketcher.Constraint("Coincident", 3, 3, -1, 1))
sketch7.addConstraint(Sketcher.Constraint("Coincident", 4, 3, -1, 1))
sketch7.addConstraint(Sketcher.Constraint("Coincident", 6, 3, -1, 1))
sketch7.addConstraint(Sketcher.Constraint("Coincident", 9, 3, -1, 1))
sketch7.addConstraint(Sketcher.Constraint("Coincident", 11, 3, -1, 1))
sketch7.addConstraint(Sketcher.Constraint("Coincident", 12, 3, -1, 1))
sketch7.addConstraint(Sketcher.Constraint("Coincident", 14, 3, -1, 1))
sketch7.addConstraint(Sketcher.Constraint("Equal", 1, 4))
sketch7.addConstraint(Sketcher.Constraint("Equal", 3, 6))
sketch7.addConstraint(Sketcher.Constraint("Equal", 4, 9))
sketch7.addConstraint(Sketcher.Constraint("Equal", 6, 11))
sketch7.addConstraint(Sketcher.Constraint("Equal", 9, 12))
sketch7.addConstraint(Sketcher.Constraint("Equal", 11, 14))
sketch7.addConstraint(Sketcher.Constraint("Horizontal", 5, 2, 6, 2))
sketch7.addConstraint(Sketcher.Constraint("Horizontal", 8, 2, 9, 1))
sketch7.addConstraint(Sketcher.Constraint("Horizontal", 3, 2, 12, 1))
sketch7.addConstraint(Sketcher.Constraint("Horizontal", 2, 2, 14, 2))
sketch7.addConstraint(Sketcher.Constraint("Vertical", 0, 2, 1, 1))
sketch7.addConstraint(Sketcher.Constraint("Vertical", 5, 2, 8, 2))
sketch7.addConstraint(Sketcher.Constraint("Equal", 15, 5))
sketch7.addConstraint(Sketcher.Constraint("Radius", 1, Q("32.75 mm")))
sketch7.addConstraint(Sketcher.Constraint("Radius", 3, Q("37.75 mm")))
sketch7.addConstraint(Sketcher.Constraint("DistanceY", 0, 2, -1, 1, Q("10 mm")))
pocket6 = body.newObject("PartDesign::Pocket", "Pocket005")
pocket6.Profile = sketch7
pocket6.Length = 12
pocket6.Reversed = True

# Sketch on XY plane
sketch8 = body.newObject("Sketcher::SketchObject", "Sketch007")
sketch8.AttachmentSupport = (doc.getObject("XY_Plane"), [""])
sketch8.MapMode = "FlatFace"
sketch8.addGeometry(Part.LineSegment(Vector(-42, -10, 0), Vector(-36, -10, 0)), False)
sketch8.addGeometry(Part.ArcOfCircle(Part.Circle(Vector(0, 0, 0), Vector(0, 0, 1), 38), math.radians(165), math.radians(195)), False)
sketch8.addGeometry(Part.LineSegment(Vector(-36, 10, 0), Vector(-42, 10, 0)), False)
sketch8.addGeometry(Part.ArcOfCircle(Part.Circle(Vector(0, 0, 0), Vector(0, 0, 1), 43), math.radians(166), math.radians(194)), False)
sketch8.addGeometry(Part.ArcOfCircle(Part.Circle(Vector(0, 0, 0), Vector(0, 0, 1), 38), math.radians(-105), math.radians(-75)), False)
sketch8.addGeometry(Part.LineSegment(Vector(-10, -36, 0), Vector(-10, -42, 0)), False)
sketch8.addGeometry(Part.ArcOfCircle(Part.Circle(Vector(0, 0, 0), Vector(0, 0, 1), 43), math.radians(-104), math.radians(-76)), False)
sketch8.addGeometry(Part.LineSegment(Vector(10, -42, 0), Vector(10, -36, 0)), False)
sketch8.addGeometry(Part.LineSegment(Vector(-10, 42, 0), Vector(-10, 36, 0)), False)
sketch8.addGeometry(Part.ArcOfCircle(Part.Circle(Vector(0, 0, 0), Vector(0, 0, 1), 38), math.radians(75), math.radians(105)), False)
sketch8.addGeometry(Part.LineSegment(Vector(10, 36, 0), Vector(10, 42, 0)), False)
sketch8.addGeometry(Part.ArcOfCircle(Part.Circle(Vector(0, 0, 0), Vector(0, 0, 1), 43), math.radians(76), math.radians(104)), False)
sketch8.addGeometry(Part.ArcOfCircle(Part.Circle(Vector(0, 0, 0), Vector(0, 0, 1), 38), math.radians(-15), math.radians(15)), False)
sketch8.addGeometry(Part.LineSegment(Vector(36, -10, 0), Vector(42, -10, 0)), False)
sketch8.addGeometry(Part.ArcOfCircle(Part.Circle(Vector(0, 0, 0), Vector(0, 0, 1), 43), math.radians(-14), math.radians(14)), False)
sketch8.addGeometry(Part.LineSegment(Vector(42, 10, 0), Vector(36, 10, 0)), False)
sketch8.addConstraint(Sketcher.Constraint("Coincident", 0, 2, 1, 2))
sketch8.addConstraint(Sketcher.Constraint("Coincident", 1, 1, 2, 1))
sketch8.addConstraint(Sketcher.Constraint("Coincident", 2, 2, 3, 1))
sketch8.addConstraint(Sketcher.Constraint("Coincident", 3, 2, 0, 1))
sketch8.addConstraint(Sketcher.Constraint("Coincident", 4, 1, 5, 1))
sketch8.addConstraint(Sketcher.Constraint("Coincident", 5, 2, 6, 1))
sketch8.addConstraint(Sketcher.Constraint("Coincident", 6, 2, 7, 1))
sketch8.addConstraint(Sketcher.Constraint("Coincident", 7, 2, 4, 2))
sketch8.addConstraint(Sketcher.Constraint("Coincident", 8, 2, 9, 2))
sketch8.addConstraint(Sketcher.Constraint("Coincident", 9, 1, 10, 1))
sketch8.addConstraint(Sketcher.Constraint("Coincident", 10, 2, 11, 1))
sketch8.addConstraint(Sketcher.Constraint("Coincident", 11, 2, 8, 1))
sketch8.addConstraint(Sketcher.Constraint("Coincident", 12, 1, 13, 1))
sketch8.addConstraint(Sketcher.Constraint("Coincident", 13, 2, 14, 1))
sketch8.addConstraint(Sketcher.Constraint("Coincident", 14, 2, 15, 1))
sketch8.addConstraint(Sketcher.Constraint("Coincident", 15, 2, 12, 2))
sketch8.addConstraint(Sketcher.Constraint("Horizontal", 0))
sketch8.addConstraint(Sketcher.Constraint("Horizontal", 2))
sketch8.addConstraint(Sketcher.Constraint("Vertical", 5))
sketch8.addConstraint(Sketcher.Constraint("Vertical", 7))
sketch8.addConstraint(Sketcher.Constraint("Vertical", 8))
sketch8.addConstraint(Sketcher.Constraint("Vertical", 10))
sketch8.addConstraint(Sketcher.Constraint("Horizontal", 13))
sketch8.addConstraint(Sketcher.Constraint("Horizontal", 15))
sketch8.addConstraint(Sketcher.Constraint("Coincident", 1, 3, -1, 1))
sketch8.addConstraint(Sketcher.Constraint("Coincident", 3, 3, -1, 1))
sketch8.addConstraint(Sketcher.Constraint("Coincident", 4, 3, -1, 1))
sketch8.addConstraint(Sketcher.Constraint("Coincident", 6, 3, -1, 1))
sketch8.addConstraint(Sketcher.Constraint("Coincident", 9, 3, -1, 1))
sketch8.addConstraint(Sketcher.Constraint("Coincident", 11, 3, -1, 1))
sketch8.addConstraint(Sketcher.Constraint("Coincident", 12, 3, -1, 1))
sketch8.addConstraint(Sketcher.Constraint("Coincident", 14, 3, -1, 1))
sketch8.addConstraint(Sketcher.Constraint("Equal", 1, 4))
sketch8.addConstraint(Sketcher.Constraint("Equal", 3, 6))
sketch8.addConstraint(Sketcher.Constraint("Equal", 4, 9))
sketch8.addConstraint(Sketcher.Constraint("Equal", 6, 11))
sketch8.addConstraint(Sketcher.Constraint("Equal", 9, 12))
sketch8.addConstraint(Sketcher.Constraint("Equal", 11, 14))
sketch8.addConstraint(Sketcher.Constraint("Horizontal", 5, 2, 6, 2))
sketch8.addConstraint(Sketcher.Constraint("Horizontal", 8, 2, 9, 1))
sketch8.addConstraint(Sketcher.Constraint("Horizontal", 3, 2, 12, 1))
sketch8.addConstraint(Sketcher.Constraint("Horizontal", 2, 2, 14, 2))
sketch8.addConstraint(Sketcher.Constraint("Vertical", 0, 2, 1, 1))
sketch8.addConstraint(Sketcher.Constraint("Vertical", 5, 2, 8, 2))
sketch8.addConstraint(Sketcher.Constraint("Equal", 15, 5))
sketch8.addConstraint(Sketcher.Constraint("Radius", 1, Q("37.75 mm")))
sketch8.addConstraint(Sketcher.Constraint("Radius", 3, Q("42.75 mm")))
sketch8.addConstraint(Sketcher.Constraint("DistanceY", 0, 2, -1, 1, Q("10 mm")))
pocket7 = body.newObject("PartDesign::Pocket", "Pocket006")
pocket7.Profile = sketch8
pocket7.Length = 15
pocket7.Reversed = True

# Sketch on XY plane
sketch9 = body.newObject("Sketcher::SketchObject", "Sketch008")
sketch9.AttachmentSupport = (doc.getObject("XY_Plane"), [""])
sketch9.MapMode = "FlatFace"
sketch9.AttachmentOffset = App.Placement(Vector(0, 0, 14), App.Rotation())
sketch9.addGeometry(Part.Circle(Vector(0, 0, 0), Vector(0, 0, 1), 9.5), False)
sketch9.addGeometry(Part.Circle(Vector(0, 0, 0), Vector(0, 0, 1), 4.5), False)
sketch9.addConstraint(Sketcher.Constraint("Coincident", 0, 3, -1, 1))
sketch9.addConstraint(Sketcher.Constraint("Coincident", 1, 3, -1, 1))
sketch9.addConstraint(Sketcher.Constraint("Diameter", 0, Q("19 mm")))
sketch9.addConstraint(Sketcher.Constraint("Diameter", 1, Q("9 mm")))
pocket8 = body.newObject("PartDesign::Pocket", "Pocket007")
pocket8.Profile = sketch9
pocket8.Length = 6
doc.recompute()

chamfer = body.newObject("PartDesign::Chamfer", "Chamfer")
chamfer.Base = (pocket8, edges_at(pocket8, [(-4.5, 0, 0)]))
chamfer.Size = 1

# Sketch on XY plane
sketch10 = body.newObject("Sketcher::SketchObject", "Sketch009")
sketch10.AttachmentSupport = (doc.getObject("XY_Plane"), [""])
sketch10.MapMode = "FlatFace"
sketch10.addGeometry(Part.ArcOfCircle(Part.Circle(Vector(0, 0, 0), Vector(0, 0, 1), 12), math.radians(-90), math.radians(0)), False)
sketch10.addGeometry(Part.ArcOfCircle(Part.Circle(Vector(0, -14, 0), Vector(0, 0, 1), 2), math.radians(90), math.radians(270)), False)
sketch10.addGeometry(Part.ArcOfCircle(Part.Circle(Vector(0, 0, 0), Vector(0, 0, 1), 16), math.radians(-90), math.radians(0)), False)
sketch10.addGeometry(Part.ArcOfCircle(Part.Circle(Vector(14, 0, 0), Vector(0, 0, 1), 2), math.radians(0), math.radians(180)), False)
sketch10.addGeometry(Part.ArcOfCircle(Part.Circle(Vector(0, 0, 0), Vector(0, 0, 1), 12), math.radians(90), math.radians(180)), False)
sketch10.addGeometry(Part.ArcOfCircle(Part.Circle(Vector(0, 14, 0), Vector(0, 0, 1), 2), math.radians(-90), math.radians(90)), False)
sketch10.addGeometry(Part.ArcOfCircle(Part.Circle(Vector(0, 0, 0), Vector(0, 0, 1), 16), math.radians(90), math.radians(180)), False)
sketch10.addGeometry(Part.ArcOfCircle(Part.Circle(Vector(-14, 0, 0), Vector(0, 0, 1), 2), math.radians(180), math.radians(360)), False)
sketch10.addConstraint(Sketcher.Constraint("Tangent", 0, 1, 1, 1))
sketch10.addConstraint(Sketcher.Constraint("Tangent", 1, 2, 2, 1))
sketch10.addConstraint(Sketcher.Constraint("Tangent", 2, 2, 3, 1))
sketch10.addConstraint(Sketcher.Constraint("Tangent", 3, 2, 0, 2))
sketch10.addConstraint(Sketcher.Constraint("Tangent", 4, 1, 5, 1))
sketch10.addConstraint(Sketcher.Constraint("Tangent", 5, 2, 6, 1))
sketch10.addConstraint(Sketcher.Constraint("Tangent", 6, 2, 7, 1))
sketch10.addConstraint(Sketcher.Constraint("Tangent", 7, 2, 4, 2))
sketch10.addConstraint(Sketcher.Constraint("Coincident", 0, 3, -1, 1))
sketch10.addConstraint(Sketcher.Constraint("Coincident", 2, 3, -1, 1))
sketch10.addConstraint(Sketcher.Constraint("Coincident", 4, 3, -1, 1))
sketch10.addConstraint(Sketcher.Constraint("Coincident", 6, 3, -1, 1))
sketch10.addConstraint(Sketcher.Constraint("Equal", 0, 4))
sketch10.addConstraint(Sketcher.Constraint("Equal", 3, 5))
sketch10.addConstraint(Sketcher.Constraint("PointOnObject", 1, 3, -2))
sketch10.addConstraint(Sketcher.Constraint("PointOnObject", 3, 3, -1))
sketch10.addConstraint(Sketcher.Constraint("PointOnObject", 5, 3, -2))
sketch10.addConstraint(Sketcher.Constraint("PointOnObject", 7, 3, -1))
sketch10.addConstraint(Sketcher.Constraint("DistanceY", 1, 3, -1, 1, Q("14 mm")))
sketch10.addConstraint(Sketcher.Constraint("Radius", 0, Q("12 mm")))
pocket9 = body.newObject("PartDesign::Pocket", "Pocket008")
pocket9.Profile = sketch10
pocket9.Length = 17
pocket9.Reversed = True

doc.recompute()
